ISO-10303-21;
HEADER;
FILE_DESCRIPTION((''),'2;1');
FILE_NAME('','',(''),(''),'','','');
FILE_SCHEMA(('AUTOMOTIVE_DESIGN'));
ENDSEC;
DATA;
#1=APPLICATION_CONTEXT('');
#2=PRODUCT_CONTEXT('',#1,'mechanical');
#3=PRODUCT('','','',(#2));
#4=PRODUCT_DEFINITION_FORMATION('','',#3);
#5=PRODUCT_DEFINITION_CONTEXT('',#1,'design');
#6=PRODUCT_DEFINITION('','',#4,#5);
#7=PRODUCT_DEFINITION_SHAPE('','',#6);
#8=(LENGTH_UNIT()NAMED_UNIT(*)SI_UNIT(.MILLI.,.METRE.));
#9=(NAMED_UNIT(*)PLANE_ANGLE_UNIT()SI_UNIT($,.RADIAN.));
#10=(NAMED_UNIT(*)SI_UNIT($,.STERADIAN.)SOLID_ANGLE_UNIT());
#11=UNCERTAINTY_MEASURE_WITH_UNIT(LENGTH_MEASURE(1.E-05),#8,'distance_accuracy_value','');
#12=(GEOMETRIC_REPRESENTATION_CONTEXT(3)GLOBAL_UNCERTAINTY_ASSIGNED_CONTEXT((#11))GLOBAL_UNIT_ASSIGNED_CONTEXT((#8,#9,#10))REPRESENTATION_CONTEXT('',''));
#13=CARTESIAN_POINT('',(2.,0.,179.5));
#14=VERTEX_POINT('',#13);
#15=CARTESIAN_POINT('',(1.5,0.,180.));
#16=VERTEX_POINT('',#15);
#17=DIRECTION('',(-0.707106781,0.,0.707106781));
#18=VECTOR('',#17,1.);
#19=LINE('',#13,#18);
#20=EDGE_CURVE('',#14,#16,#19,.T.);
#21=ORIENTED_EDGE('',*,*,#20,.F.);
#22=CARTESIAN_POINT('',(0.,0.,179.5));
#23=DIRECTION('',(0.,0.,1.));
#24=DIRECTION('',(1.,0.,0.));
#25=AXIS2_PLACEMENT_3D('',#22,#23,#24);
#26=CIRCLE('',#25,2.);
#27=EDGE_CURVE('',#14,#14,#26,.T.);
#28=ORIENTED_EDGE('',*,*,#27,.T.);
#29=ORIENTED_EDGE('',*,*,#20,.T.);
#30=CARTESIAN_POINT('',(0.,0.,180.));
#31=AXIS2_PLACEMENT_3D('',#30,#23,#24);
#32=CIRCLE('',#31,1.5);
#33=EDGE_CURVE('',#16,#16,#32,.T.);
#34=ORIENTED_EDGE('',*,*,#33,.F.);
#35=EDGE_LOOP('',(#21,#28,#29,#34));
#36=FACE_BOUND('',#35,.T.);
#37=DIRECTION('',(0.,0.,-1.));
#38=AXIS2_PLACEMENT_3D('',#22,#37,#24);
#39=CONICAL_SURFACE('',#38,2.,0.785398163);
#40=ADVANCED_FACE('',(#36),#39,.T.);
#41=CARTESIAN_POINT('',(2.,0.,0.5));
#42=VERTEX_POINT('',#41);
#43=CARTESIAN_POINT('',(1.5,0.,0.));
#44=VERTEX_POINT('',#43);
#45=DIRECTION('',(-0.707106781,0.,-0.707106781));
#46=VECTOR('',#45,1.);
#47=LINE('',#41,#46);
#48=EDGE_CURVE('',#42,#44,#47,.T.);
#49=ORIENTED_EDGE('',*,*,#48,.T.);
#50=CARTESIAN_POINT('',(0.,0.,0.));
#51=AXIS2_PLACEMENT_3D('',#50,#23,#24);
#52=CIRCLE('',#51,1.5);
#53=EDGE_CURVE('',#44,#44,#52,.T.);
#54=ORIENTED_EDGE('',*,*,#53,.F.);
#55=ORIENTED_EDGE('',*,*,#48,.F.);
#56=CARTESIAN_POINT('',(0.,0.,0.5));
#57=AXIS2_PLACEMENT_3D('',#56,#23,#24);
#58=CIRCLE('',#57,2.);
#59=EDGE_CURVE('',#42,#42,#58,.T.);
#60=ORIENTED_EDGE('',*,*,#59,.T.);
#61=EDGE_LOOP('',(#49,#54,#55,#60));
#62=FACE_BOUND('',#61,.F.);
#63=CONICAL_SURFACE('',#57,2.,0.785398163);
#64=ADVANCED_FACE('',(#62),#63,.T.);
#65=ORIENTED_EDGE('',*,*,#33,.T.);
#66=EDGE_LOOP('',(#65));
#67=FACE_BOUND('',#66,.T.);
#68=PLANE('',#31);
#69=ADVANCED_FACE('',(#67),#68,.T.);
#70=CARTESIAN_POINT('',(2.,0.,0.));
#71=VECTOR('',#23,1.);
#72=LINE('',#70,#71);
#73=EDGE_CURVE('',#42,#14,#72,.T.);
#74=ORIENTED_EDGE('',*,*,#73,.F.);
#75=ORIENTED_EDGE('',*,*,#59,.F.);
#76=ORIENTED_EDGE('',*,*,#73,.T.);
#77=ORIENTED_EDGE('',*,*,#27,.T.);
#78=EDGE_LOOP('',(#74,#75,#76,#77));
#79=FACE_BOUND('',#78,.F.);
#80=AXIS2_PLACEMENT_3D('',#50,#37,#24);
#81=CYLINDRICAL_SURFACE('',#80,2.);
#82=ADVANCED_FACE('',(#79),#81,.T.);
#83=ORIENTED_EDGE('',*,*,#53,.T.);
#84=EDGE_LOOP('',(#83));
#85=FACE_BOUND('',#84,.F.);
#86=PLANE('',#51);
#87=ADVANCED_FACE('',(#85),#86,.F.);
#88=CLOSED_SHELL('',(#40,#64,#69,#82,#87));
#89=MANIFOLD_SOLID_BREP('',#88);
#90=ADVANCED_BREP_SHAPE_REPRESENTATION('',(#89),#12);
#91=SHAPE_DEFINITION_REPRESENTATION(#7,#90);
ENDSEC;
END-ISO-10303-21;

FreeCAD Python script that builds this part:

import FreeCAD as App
import Part
import Sketcher

V = App.Vector


def edges_at(feature, points):
    """Names of the edges that pass closest to the given points."""
    edges = feature.Shape.Edges
    near = lambda p: min(range(len(edges)), key=lambda i: edges[i].distToShape(Part.Vertex(*p))[0])
    return sorted({f"Edge{near(p) + 1}" for p in points})

doc = App.newDocument("Part")
body = doc.addObject("PartDesign::Body", "Body")

# Sketch on XY plane
sketch1 = body.newObject("Sketcher::SketchObject", "Sketch")
sketch1.AttachmentSupport = (doc.getObject("XY_Plane"), [""])
sketch1.MapMode = "FlatFace"
sketch1.addGeometry(Part.Circle(V(0, 0, 0), V(0, 0, 1), 2), False)
sketch1.addConstraint(Sketcher.Constraint("Coincident", 0, 3, -1, 1))
sketch1.addConstraint(Sketcher.Constraint("Diameter", 0, 4.0))
pad1 = body.newObject("PartDesign::Pad", "Pad")
pad1.Profile = sketch1
pad1.Length = 180
doc.recompute()

chamfer = body.newObject("PartDesign::Chamfer", "Chamfer")
chamfer.Base = (pad1, edges_at(pad1, [(-2, 0, 180), (-2, 0, 0)]))
chamfer.Size = 0.5

doc.recompute()
